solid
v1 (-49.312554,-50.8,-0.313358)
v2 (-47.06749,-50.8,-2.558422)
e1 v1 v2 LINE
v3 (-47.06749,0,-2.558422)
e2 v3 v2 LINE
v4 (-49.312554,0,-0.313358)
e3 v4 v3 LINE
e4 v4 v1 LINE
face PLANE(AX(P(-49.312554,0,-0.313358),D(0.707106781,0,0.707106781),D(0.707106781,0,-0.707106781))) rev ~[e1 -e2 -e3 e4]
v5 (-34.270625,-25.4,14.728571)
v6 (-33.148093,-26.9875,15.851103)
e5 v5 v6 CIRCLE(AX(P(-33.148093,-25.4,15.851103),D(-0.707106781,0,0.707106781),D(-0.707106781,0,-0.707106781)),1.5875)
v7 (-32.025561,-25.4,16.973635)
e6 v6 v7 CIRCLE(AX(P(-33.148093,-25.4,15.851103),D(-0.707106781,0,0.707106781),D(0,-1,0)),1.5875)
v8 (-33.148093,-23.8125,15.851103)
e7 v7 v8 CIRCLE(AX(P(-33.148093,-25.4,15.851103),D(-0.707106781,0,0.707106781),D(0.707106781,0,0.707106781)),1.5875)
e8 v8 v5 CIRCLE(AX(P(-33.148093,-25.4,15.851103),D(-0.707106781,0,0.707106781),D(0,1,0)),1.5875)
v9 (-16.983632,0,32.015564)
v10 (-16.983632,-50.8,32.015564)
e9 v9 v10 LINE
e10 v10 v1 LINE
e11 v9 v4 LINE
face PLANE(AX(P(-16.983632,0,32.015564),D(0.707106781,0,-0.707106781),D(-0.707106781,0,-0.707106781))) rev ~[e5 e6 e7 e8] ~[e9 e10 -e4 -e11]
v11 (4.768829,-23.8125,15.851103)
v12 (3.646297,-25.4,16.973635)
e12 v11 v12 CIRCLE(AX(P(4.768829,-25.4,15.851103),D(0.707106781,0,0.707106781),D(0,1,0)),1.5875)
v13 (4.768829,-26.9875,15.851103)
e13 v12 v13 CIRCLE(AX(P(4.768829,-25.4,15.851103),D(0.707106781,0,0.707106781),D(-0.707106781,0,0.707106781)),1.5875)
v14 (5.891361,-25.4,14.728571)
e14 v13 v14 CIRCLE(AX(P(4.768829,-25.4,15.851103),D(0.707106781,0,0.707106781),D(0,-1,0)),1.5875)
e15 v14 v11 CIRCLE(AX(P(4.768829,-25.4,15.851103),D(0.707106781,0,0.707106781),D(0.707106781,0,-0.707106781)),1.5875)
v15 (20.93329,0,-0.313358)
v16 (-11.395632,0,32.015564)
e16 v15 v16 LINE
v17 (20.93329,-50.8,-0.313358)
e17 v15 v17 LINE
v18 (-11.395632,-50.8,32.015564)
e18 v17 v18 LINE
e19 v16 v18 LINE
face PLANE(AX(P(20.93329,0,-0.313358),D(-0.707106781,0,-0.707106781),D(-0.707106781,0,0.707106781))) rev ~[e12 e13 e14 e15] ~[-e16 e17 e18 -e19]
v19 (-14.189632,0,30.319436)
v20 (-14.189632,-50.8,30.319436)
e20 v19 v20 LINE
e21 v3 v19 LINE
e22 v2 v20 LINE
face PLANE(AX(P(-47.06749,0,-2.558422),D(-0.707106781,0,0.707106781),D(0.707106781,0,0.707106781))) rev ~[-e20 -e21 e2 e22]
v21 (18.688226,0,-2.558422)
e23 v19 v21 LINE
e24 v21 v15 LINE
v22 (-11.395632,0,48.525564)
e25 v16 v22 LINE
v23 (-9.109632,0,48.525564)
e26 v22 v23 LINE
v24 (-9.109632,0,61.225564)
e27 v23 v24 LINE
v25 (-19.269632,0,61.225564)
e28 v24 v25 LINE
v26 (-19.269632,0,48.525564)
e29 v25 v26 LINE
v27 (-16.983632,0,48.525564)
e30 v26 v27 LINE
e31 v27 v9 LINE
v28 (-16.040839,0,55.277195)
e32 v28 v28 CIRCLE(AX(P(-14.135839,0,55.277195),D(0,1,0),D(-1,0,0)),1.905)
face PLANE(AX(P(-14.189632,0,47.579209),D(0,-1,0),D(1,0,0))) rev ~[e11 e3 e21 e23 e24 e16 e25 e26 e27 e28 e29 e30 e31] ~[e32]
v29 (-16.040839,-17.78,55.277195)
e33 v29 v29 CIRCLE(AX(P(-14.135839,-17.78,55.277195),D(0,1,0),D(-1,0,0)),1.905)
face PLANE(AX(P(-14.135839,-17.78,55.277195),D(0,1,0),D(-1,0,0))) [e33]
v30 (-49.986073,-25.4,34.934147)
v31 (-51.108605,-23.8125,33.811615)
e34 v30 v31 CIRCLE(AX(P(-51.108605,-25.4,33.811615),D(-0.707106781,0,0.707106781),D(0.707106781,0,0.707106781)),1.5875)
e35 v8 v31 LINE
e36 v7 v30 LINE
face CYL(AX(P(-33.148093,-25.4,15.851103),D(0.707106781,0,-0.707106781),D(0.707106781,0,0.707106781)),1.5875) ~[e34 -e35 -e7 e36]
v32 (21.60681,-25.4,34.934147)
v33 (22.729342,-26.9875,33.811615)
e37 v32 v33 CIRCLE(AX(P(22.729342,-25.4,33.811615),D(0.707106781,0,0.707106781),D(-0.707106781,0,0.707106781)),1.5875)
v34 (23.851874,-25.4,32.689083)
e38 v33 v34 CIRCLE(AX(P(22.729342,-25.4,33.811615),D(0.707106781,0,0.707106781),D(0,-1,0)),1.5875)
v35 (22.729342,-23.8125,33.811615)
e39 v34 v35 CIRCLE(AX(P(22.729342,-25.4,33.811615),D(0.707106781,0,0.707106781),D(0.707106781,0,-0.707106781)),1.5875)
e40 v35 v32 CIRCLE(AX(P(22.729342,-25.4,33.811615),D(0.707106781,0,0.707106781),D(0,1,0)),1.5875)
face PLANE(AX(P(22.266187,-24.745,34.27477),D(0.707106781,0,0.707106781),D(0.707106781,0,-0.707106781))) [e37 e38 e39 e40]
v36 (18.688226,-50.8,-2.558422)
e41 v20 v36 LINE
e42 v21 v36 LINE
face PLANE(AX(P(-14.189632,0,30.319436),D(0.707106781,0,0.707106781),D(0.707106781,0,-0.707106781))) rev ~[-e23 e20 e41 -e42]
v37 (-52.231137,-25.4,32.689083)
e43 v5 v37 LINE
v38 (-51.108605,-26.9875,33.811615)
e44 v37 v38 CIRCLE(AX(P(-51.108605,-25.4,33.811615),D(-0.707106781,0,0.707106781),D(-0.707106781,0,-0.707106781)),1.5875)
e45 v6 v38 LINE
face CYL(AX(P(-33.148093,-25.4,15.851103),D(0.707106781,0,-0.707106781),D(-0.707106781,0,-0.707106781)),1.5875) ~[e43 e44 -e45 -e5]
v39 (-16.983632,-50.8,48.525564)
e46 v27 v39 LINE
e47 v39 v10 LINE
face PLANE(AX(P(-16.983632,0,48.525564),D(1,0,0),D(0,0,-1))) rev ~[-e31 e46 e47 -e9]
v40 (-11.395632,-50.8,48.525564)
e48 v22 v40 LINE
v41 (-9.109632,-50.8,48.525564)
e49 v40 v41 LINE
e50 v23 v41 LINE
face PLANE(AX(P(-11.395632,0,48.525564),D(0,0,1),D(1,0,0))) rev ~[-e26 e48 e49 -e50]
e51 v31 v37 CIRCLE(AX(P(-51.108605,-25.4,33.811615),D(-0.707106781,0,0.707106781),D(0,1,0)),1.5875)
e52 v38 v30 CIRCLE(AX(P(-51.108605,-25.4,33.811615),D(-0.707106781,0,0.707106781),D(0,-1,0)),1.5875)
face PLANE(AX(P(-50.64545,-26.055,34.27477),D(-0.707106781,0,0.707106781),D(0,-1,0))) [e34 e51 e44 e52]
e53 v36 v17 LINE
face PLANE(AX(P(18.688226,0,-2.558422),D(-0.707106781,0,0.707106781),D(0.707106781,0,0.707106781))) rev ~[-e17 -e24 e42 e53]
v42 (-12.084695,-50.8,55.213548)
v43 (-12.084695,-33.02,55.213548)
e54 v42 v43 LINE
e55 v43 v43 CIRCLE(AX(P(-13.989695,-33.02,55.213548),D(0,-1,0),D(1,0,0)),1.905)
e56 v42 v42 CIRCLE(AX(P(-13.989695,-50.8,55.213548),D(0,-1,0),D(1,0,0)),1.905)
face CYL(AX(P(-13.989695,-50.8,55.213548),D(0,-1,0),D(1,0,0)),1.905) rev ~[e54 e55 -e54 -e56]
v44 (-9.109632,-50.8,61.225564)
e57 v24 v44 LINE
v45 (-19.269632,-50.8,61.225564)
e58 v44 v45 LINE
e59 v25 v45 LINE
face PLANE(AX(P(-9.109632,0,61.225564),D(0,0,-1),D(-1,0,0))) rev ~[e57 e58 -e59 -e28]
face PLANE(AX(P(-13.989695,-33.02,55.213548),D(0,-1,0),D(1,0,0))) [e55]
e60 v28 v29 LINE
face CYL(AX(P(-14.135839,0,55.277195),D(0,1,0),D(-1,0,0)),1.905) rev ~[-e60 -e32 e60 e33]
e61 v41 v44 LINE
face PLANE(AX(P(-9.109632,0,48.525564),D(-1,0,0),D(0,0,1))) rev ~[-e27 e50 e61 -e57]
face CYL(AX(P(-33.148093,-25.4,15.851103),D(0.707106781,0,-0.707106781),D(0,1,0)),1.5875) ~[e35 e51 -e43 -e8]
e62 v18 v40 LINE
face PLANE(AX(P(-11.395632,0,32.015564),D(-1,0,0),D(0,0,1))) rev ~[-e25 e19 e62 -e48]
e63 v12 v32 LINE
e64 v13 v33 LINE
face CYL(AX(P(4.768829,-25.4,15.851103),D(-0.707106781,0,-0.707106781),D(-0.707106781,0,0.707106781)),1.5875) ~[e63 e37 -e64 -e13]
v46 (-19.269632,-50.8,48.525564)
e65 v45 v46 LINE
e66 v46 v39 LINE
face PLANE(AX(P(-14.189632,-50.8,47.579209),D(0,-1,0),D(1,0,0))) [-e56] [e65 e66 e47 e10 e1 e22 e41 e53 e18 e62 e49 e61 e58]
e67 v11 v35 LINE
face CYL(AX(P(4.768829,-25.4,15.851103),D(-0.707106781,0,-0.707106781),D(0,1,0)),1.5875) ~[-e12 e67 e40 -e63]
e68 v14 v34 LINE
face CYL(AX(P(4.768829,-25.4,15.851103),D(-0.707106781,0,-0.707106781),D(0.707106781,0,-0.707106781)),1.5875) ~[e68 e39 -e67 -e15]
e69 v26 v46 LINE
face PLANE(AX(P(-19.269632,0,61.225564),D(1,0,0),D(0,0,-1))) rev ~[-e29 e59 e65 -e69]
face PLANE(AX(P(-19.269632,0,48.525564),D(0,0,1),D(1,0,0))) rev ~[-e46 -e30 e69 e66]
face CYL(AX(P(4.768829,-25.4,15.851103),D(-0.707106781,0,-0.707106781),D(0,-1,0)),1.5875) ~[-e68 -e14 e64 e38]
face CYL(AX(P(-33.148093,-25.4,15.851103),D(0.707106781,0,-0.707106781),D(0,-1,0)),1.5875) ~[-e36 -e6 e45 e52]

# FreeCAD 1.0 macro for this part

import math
import FreeCAD as App
import Part
import Sketcher

V = App.Vector
Q = App.Units.Quantity


def add_polygon(sketch, points):
    """Adds a closed chain of lines whose ends are joined by coincident constraints."""
    first, n = sketch.GeometryCount, len(points)
    for a, b in zip(points, points[1:] + points[:1]):
        sketch.addGeometry(Part.LineSegment(App.Vector(*a, 0), App.Vector(*b, 0)), False)
    for i in range(n):
        sketch.addConstraint(Sketcher.Constraint("Coincident", first + i, 2, first + (i + 1) % n, 1))

doc = App.newDocument("Part")
params = doc.addObject("Spreadsheet::Sheet", "Params")
for row, (alias, value) in enumerate([
    ("sketch1_width", "0.4 in"),
    ("sketch1_height", "0.5 in"),
    ("sketch1_length", "1.8 in"),
    ("sketch1_width2", "0.09 in"),
    ("sketch1_height2", "0.65 in"),
    ("pad1_length", "2 in"),
    ("sketch2_diameter", "0.15 in"),
    ("pocket1_length", "0.7 in"),
    ("sketch3_radius", "0.0625 in"),
    ("pad2_length", "1 in"),
    ("sketch4_radius", "0.0625 in"),
    ("pad3_length", "1 in"),
    ("sketch5_diameter", "0.15 in"),
    ("pocket2_length", "0.7 in"),
], start=1):
    params.set(f"A{row}", alias)
    params.set(f"B{row}", "=" + value)
    params.setAlias(f"B{row}", alias)

body = doc.addObject("PartDesign::Body", "Body")

# Sketch on XZ plane
sketch1 = body.newObject("Sketcher::SketchObject", "Sketch")
sketch1.AttachmentSupport = (doc.getObject("XZ_Plane"), [""])
sketch1.MapMode = "FlatFace"
add_polygon(sketch1, [(-9.1, 61.2), (-19.3, 61.2), (-19.3, 48.5), (-17, 48.5), (-17, 32), (-49.3, -0.3), (-47.1, -2.6), (-14.2, 30.3), (18.7, -2.6), (20.9, -0.3), (-11.4, 32), (-11.4, 48.5), (-9.1, 48.5)])  # lines 0-12
sketch1.addConstraint([
    Sketcher.Constraint("Horizontal", 0),
    Sketcher.Constraint("Vertical", 1),
    Sketcher.Constraint("Horizontal", 2),
    Sketcher.Constraint("Vertical", 3),
    Sketcher.Constraint("Vertical", 10),
    Sketcher.Constraint("Horizontal", 11),
    Sketcher.Constraint("Vertical", 12),
    Sketcher.Constraint("Perpendicular", 4, 5),
    Sketcher.Constraint("Perpendicular", 5, 6),
    Sketcher.Constraint("Perpendicular", 6, 7),
    Sketcher.Constraint("Perpendicular", 7, 8),
    Sketcher.Constraint("Perpendicular", 8, 9),
    Sketcher.Constraint("Horizontal", 5, 2, 7, 2),
    Sketcher.Constraint("Horizontal", 4, 2, 8, 2),
    Sketcher.Constraint("Horizontal", 3, 2, 9, 2),
    Sketcher.Constraint("Horizontal", 2, 2, 10, 2),
    Sketcher.Constraint("Equal", 2, 11),
    Sketcher.Constraint("Equal", 6, 7),
    Sketcher.Constraint("DistanceX", 0, 2, 0, 1, Q("0.4 in")),
    Sketcher.Constraint("DistanceY", 1, 2, 1, 1, Q("0.5 in")),
    Sketcher.Constraint("Distance", 4, Q("1.8 in")),
    Sketcher.Constraint("DistanceX", 2, 1, 2, 2, Q("0.09 in")),
    Sketcher.Constraint("DistanceY", 3, 2, 3, 1, Q("0.65 in")),
    Sketcher.Constraint("Distance", 5, Q("0.125 in")),
    Sketcher.Constraint("DistanceX", 0, 2, -1, 1, 19.269632),
    Sketcher.Constraint("DistanceY", 4, 2, -1, 1, 0.313358),
])
sketch1.setExpression("Constraints[31]", "Params.sketch1_width")
sketch1.setExpression("Constraints[32]", "Params.sketch1_height")
sketch1.setExpression("Constraints[33]", "Params.sketch1_length")
sketch1.setExpression("Constraints[34]", "Params.sketch1_width2")
sketch1.setExpression("Constraints[35]", "Params.sketch1_height2")
pad1 = body.newObject("PartDesign::Pad", "Pad")
pad1.Profile = sketch1
pad1.setExpression("Length", "Params.pad1_length")

# Sketch on XZ plane
sketch2 = body.newObject("Sketcher::SketchObject", "Sketch001")
sketch2.AttachmentSupport = (doc.getObject("XZ_Plane"), [""])
sketch2.MapMode = "FlatFace"
sketch2.addGeometry(Part.Circle(V(-14.1, 55.3, 0), V(0, 0, 1), 1.9), False)
sketch2.addConstraint([
    Sketcher.Constraint("Diameter", 0, Q("0.15 in")),
    Sketcher.Constraint("DistanceX", 0, 3, -1, 1, 14.135839),
    Sketcher.Constraint("DistanceY", -1, 1, 0, 3, 55.277195),
])
sketch2.setExpression("Constraints[0]", "Params.sketch2_diameter")
pocket1 = body.newObject("PartDesign::Pocket", "Pocket")
pocket1.Profile = sketch2
pocket1.setExpression("Length", "Params.pocket1_length")
pocket1.Reversed = True

# Sketch on an angled plane
sketch3 = body.newObject("Sketcher::SketchObject", "Sketch002")
sketch3.Placement = App.Placement(V(10.309966, 0, 10.309966), App.Rotation(V(0.707106781, 0, -0.707106781), V(0, 0.999999999, 0), V(0.707106781, 0, 0.707106781), "ZXY"))
sketch3.addGeometry([
    Part.ArcOfCircle(Part.Circle(V(-7.8, -25.4, 0), V(0, 0, 1), 1.6), math.radians(90), math.radians(180)),
    Part.ArcOfCircle(Part.Circle(V(-7.8, -25.4, 0), V(0, 0, 1), 1.6), math.radians(180), math.radians(270)),
    Part.ArcOfCircle(Part.Circle(V(-7.8, -25.4, 0), V(0, 0, 1), 1.6), math.radians(-90), math.radians(0)),
    Part.ArcOfCircle(Part.Circle(V(-7.8, -25.4, 0), V(0, 0, 1), 1.6), math.radians(0), math.radians(90)),
], False)
sketch3.addConstraint([
    Sketcher.Constraint("Tangent", 0, 2, 1, 1),
    Sketcher.Constraint("Tangent", 1, 2, 2, 1),
    Sketcher.Constraint("Tangent", 2, 2, 3, 1),
    Sketcher.Constraint("Tangent", 3, 2, 0, 1),
    Sketcher.Constraint("Equal", 0, 1),
    Sketcher.Constraint("Horizontal", 3, 3, 0, 2),
    Sketcher.Constraint("Horizontal", 0, 2, 2, 2),
    Sketcher.Constraint("Vertical", 3, 3, 1, 2),
    Sketcher.Constraint("Vertical", 1, 2, 3, 2),
    Sketcher.Constraint("DistanceY", 0, 3, -1, 1, Q("1 in")),
    Sketcher.Constraint("Radius", 0, Q("0.0625 in")),
    Sketcher.Constraint("DistanceX", 0, 3, -1, 1, 7.836351),
])
sketch3.setExpression("Constraints[10]", "Params.sketch3_radius")
pad2 = body.newObject("PartDesign::Pad", "Pad001")
pad2.Profile = sketch3
pad2.setExpression("Length", "Params.pad2_length")

# Sketch on an angled plane
sketch4 = body.newObject("Sketcher::SketchObject", "Sketch003")
sketch4.Placement = App.Placement(V(-24.499598, 0, 24.499598), App.Rotation(V(0, -1, 0), V(0.707106781, 0, 0.707106781), V(-0.707106781, 0, 0.707106781), "ZXY"))
sketch4.addGeometry([
    Part.ArcOfCircle(Part.Circle(V(25.4, -12.2, 0), V(0, 0, 1), 1.6), math.radians(0), math.radians(90)),
    Part.ArcOfCircle(Part.Circle(V(25.4, -12.2, 0), V(0, 0, 1), 1.6), math.radians(90), math.radians(180)),
    Part.ArcOfCircle(Part.Circle(V(25.4, -12.2, 0), V(0, 0, 1), 1.6), math.radians(180), math.radians(270)),
    Part.ArcOfCircle(Part.Circle(V(25.4, -12.2, 0), V(0, 0, 1), 1.6), math.radians(-90), math.radians(0)),
], False)
sketch4.addConstraint([
    Sketcher.Constraint("Tangent", 0, 2, 1, 1),
    Sketcher.Constraint("Tangent", 1, 2, 2, 1),
    Sketcher.Constraint("Tangent", 2, 2, 3, 1),
    Sketcher.Constraint("Tangent", 3, 2, 0, 1),
    Sketcher.Constraint("Equal", 0, 1),
    Sketcher.Constraint("Horizontal", 3, 3, 1, 2),
    Sketcher.Constraint("Horizontal", 1, 2, 3, 2),
    Sketcher.Constraint("Vertical", 3, 3, 0, 2),
    Sketcher.Constraint("Vertical", 0, 2, 2, 2),
    Sketcher.Constraint("DistanceX", -1, 1, 0, 3, Q("1 in")),
    Sketcher.Constraint("Radius", 0, Q("0.0625 in")),
    Sketcher.Constraint("DistanceY", 0, 3, -1, 1, 12.230819),
])
sketch4.setExpression("Constraints[10]", "Params.sketch4_radius")
pad3 = body.newObject("PartDesign::Pad", "Pad002")
pad3.Profile = sketch4
pad3.setExpression("Length", "Params.pad3_length")

# Sketch on XZ plane
sketch5 = body.newObject("Sketcher::SketchObject", "Sketch004")
sketch5.AttachmentSupport = (doc.getObject("XZ_Plane"), [""])
sketch5.MapMode = "FlatFace"
sketch5.AttachmentOffset = App.Placement(V(0, 0, 2 * 25.4), App.Rotation())
sketch5.addGeometry(Part.Circle(V(-14, 55.2, 0), V(0, 0, 1), 1.9), False)
sketch5.addConstraint([
    Sketcher.Constraint("Diameter", 0, Q("0.15 in")),
    Sketcher.Constraint("DistanceY", -1, 1, 0, 3, 55.213548),
    Sketcher.Constraint("DistanceX", 0, 3, -1, 1, 13.989695),
])
sketch5.setExpression("Constraints[0]", "Params.sketch5_diameter")
pocket2 = body.newObject("PartDesign::Pocket", "Pocket001")
pocket2.Profile = sketch5
pocket2.setExpression("Length", "Params.pocket2_length")

doc.recompute()
